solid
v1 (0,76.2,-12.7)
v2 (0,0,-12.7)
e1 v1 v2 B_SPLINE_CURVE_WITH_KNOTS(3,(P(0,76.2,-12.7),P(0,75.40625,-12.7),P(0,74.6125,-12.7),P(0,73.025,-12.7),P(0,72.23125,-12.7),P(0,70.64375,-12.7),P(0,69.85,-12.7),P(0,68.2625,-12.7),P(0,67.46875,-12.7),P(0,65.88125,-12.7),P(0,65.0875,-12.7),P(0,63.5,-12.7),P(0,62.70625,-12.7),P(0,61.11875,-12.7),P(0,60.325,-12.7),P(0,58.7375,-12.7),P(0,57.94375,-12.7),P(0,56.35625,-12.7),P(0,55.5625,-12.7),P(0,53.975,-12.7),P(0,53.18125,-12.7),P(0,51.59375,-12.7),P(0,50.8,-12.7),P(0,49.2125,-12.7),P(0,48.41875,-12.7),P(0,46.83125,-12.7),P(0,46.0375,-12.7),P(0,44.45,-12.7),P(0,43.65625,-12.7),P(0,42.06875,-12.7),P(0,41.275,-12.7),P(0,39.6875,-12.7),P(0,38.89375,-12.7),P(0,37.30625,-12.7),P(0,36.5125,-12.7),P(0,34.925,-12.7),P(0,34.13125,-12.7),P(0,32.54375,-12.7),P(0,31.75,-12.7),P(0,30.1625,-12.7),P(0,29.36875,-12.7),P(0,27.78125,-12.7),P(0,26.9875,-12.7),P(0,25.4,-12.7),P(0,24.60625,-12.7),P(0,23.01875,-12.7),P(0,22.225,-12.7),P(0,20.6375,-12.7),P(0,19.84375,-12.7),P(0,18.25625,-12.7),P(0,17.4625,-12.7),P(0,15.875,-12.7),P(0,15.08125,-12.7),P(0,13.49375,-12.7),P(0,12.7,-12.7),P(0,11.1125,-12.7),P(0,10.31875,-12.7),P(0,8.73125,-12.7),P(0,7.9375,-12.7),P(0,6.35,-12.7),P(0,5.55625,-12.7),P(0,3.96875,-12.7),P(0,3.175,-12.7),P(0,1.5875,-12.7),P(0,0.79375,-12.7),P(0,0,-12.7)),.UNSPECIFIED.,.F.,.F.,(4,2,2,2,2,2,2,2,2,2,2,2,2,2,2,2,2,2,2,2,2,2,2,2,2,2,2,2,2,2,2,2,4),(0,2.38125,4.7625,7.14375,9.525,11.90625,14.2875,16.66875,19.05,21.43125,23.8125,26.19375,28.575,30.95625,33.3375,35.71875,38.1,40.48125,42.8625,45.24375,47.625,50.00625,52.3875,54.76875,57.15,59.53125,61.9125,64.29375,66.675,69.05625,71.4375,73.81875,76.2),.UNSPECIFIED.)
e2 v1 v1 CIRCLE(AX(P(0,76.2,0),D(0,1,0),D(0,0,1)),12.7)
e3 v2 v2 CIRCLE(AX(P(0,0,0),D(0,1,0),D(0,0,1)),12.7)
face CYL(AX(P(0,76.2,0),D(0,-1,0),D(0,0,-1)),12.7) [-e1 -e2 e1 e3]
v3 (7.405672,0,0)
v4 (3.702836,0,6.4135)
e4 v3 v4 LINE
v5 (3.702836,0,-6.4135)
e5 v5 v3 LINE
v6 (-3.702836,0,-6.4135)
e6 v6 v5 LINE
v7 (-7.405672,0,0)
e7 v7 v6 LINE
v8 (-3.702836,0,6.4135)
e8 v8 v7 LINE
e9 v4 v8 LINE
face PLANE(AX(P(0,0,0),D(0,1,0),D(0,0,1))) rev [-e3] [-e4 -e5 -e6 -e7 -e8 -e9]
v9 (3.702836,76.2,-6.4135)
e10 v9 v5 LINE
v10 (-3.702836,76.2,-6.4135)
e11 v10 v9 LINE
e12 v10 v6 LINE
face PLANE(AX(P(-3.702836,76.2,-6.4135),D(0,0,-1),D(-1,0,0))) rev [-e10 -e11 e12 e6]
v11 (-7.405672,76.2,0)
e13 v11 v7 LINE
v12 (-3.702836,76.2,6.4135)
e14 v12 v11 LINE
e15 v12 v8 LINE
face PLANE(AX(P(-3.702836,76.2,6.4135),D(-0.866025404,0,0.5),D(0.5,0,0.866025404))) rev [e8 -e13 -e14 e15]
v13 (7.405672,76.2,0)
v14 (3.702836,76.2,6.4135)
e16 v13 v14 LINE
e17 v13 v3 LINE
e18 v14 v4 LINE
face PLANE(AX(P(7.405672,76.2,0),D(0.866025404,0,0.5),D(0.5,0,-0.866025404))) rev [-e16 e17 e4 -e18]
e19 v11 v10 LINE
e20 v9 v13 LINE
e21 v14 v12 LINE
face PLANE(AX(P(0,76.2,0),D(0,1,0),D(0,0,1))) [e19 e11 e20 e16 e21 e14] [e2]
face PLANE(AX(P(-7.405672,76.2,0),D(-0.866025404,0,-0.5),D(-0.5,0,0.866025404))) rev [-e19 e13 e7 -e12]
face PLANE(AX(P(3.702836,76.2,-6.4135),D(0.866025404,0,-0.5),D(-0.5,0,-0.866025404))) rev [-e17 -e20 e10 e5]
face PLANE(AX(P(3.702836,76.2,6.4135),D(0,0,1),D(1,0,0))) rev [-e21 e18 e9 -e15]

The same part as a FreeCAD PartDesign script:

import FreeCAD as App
import Part
import Sketcher

V = App.Vector
Q = App.Units.Quantity


def add_polygon(sketch, points):
    """Adds a closed chain of lines whose ends are joined by coincident constraints."""
    first, n = sketch.GeometryCount, len(points)
    for a, b in zip(points, points[1:] + points[:1]):
        sketch.addGeometry(Part.LineSegment(App.Vector(*a, 0), App.Vector(*b, 0)), False)
    for i in range(n):
        sketch.addConstraint(Sketcher.Constraint("Coincident", first + i, 2, first + (i + 1) % n, 1))

doc = App.newDocument("Part")
body = doc.addObject("PartDesign::Body", "Body")

sketch1 = body.newObject("Sketcher::SketchObject", "Sketch")
sketch1.AttachmentSupport = (doc.getObject("XZ_Plane"), [""])
sketch1.MapMode = "FlatFace"
sketch1.addGeometry(Part.Circle(V(0, 0, 0), V(0, 0, 1), 13), False)
sketch1.addConstraint([
    Sketcher.Constraint("Coincident", 0, 3, -1, 1),
    Sketcher.Constraint("Diameter", 0, Q("1 in")),
])
pad1 = body.newObject("PartDesign::Pad", "Pad")
pad1.Profile = sketch1
pad1.Length = Q("3 in")
pad1.Reversed = True

sketch2 = body.newObject("Sketcher::SketchObject", "Sketch001")
sketch2.AttachmentSupport = (doc.getObject("XZ_Plane"), [""])
sketch2.MapMode = "FlatFace"
add_polygon(sketch2, [(7, 0), (4, 6), (-4, 6), (-7, 0), (-4, -6), (4, -6)])
sketch2.addConstraint([
    Sketcher.Constraint("Horizontal", 1),
    Sketcher.Constraint("Horizontal", 4),
    Sketcher.Constraint("Symmetric", 0, 2, 3, 2, -1, 1),
    Sketcher.Constraint("Symmetric", 2, 2, 5, 2, -1, 1),
    Sketcher.Constraint("PointOnObject", 2, 2, -1),
    Sketcher.Constraint("Parallel", 2, 5),
    Sketcher.Constraint("Vertical", 1, 2, 3, 2),
    Sketcher.Constraint("Angle", 0, Q("120 deg")),
    Sketcher.Constraint("DistanceY", 3, 2, 1, 2, Q("0.505 in")),
    Sketcher.Constraint("DistanceX", 1, 2, 1, 1, 7.405672),
])
pocket1 = body.newObject("PartDesign::Pocket", "Pocket")
pocket1.Profile = sketch2
pocket1.Type = "ThroughAll"

doc.recompute()
